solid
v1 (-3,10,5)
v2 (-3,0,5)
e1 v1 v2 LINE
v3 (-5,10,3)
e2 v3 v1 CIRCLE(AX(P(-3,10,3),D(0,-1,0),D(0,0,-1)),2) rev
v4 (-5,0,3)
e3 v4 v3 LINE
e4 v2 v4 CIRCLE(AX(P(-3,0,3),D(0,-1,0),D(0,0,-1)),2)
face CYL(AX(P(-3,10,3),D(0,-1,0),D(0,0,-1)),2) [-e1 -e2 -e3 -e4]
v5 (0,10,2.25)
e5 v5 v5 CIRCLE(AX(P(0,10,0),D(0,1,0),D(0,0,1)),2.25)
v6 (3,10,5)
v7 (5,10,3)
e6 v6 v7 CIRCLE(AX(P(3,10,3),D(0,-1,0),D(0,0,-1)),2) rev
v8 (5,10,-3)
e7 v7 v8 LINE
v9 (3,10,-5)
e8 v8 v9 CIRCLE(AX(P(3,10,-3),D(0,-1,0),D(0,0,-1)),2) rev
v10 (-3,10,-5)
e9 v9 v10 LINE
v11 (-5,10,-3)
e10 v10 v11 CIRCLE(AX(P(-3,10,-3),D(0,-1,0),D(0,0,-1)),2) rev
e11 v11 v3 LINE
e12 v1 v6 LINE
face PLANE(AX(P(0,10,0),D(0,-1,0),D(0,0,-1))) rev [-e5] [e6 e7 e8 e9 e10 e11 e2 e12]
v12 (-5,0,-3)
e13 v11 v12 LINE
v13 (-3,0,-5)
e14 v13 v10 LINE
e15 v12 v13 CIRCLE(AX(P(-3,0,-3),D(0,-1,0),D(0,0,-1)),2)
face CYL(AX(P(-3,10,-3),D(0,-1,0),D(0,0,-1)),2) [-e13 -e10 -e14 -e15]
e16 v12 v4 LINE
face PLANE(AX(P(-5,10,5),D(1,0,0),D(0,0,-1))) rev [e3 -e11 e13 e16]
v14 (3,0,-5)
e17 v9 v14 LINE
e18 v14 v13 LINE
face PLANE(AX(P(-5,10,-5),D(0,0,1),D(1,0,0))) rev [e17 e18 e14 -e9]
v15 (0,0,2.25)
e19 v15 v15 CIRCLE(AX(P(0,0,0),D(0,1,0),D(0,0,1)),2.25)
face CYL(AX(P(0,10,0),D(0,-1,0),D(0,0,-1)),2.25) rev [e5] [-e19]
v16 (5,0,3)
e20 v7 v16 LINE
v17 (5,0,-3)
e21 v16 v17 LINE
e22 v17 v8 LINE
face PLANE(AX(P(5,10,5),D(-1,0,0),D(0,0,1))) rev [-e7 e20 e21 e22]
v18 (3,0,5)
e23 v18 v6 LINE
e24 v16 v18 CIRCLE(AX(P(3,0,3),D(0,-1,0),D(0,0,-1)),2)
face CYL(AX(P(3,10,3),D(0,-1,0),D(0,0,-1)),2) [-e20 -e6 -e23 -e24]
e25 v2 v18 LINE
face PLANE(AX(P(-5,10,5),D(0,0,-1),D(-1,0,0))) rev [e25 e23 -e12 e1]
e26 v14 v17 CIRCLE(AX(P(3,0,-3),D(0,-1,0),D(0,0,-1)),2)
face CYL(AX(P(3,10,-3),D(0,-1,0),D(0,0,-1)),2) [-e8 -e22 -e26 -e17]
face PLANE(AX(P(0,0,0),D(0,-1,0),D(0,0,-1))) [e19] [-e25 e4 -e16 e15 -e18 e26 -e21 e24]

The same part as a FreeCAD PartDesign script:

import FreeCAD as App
import Part
import Sketcher
from FreeCAD import Vector


def edges_at(feature, points):
    """Names of the edges that pass closest to the given points."""
    edges = feature.Shape.Edges
    near = lambda p: min(range(len(edges)), key=lambda i: edges[i].distToShape(Part.Vertex(*p))[0])
    return sorted({f"Edge{near(p) + 1}" for p in points})

doc = App.newDocument("Part")
body = doc.addObject("PartDesign::Body", "Body")

sketch1 = body.newObject("Sketcher::SketchObject", "Sketch")
sketch1.AttachmentSupport = (doc.getObject("XZ_Plane"), [""])
sketch1.MapMode = "FlatFace"
sketch1.addGeometry(Part.LineSegment(Vector(-5, -5, 0), Vector(-5, 5, 0)), False)
sketch1.addGeometry(Part.LineSegment(Vector(-5, 5, 0), Vector(5, 5, 0)), False)
sketch1.addGeometry(Part.LineSegment(Vector(5, 5, 0), Vector(5, -5, 0)), False)
sketch1.addGeometry(Part.LineSegment(Vector(5, -5, 0), Vector(-5, -5, 0)), False)
sketch1.addGeometry(Part.Circle(Vector(0, 0, 0), Vector(0, 0, 1), 2.2), False)
sketch1.addConstraint(Sketcher.Constraint("Coincident", 0, 2, 1, 1))
sketch1.addConstraint(Sketcher.Constraint("Coincident", 1, 2, 2, 1))
sketch1.addConstraint(Sketcher.Constraint("Coincident", 2, 2, 3, 1))
sketch1.addConstraint(Sketcher.Constraint("Coincident", 3, 2, 0, 1))
sketch1.addConstraint(Sketcher.Constraint("Vertical", 0))
sketch1.addConstraint(Sketcher.Constraint("Horizontal", 1))
sketch1.addConstraint(Sketcher.Constraint("Vertical", 2))
sketch1.addConstraint(Sketcher.Constraint("Horizontal", 3))
sketch1.addConstraint(Sketcher.Constraint("Coincident", 4, 3, -1, 1))
sketch1.addConstraint(Sketcher.Constraint("Symmetric", 0, 2, 2, 2, -1, 1))
sketch1.addConstraint(Sketcher.Constraint("Equal", 3, 0))
sketch1.addConstraint(Sketcher.Constraint("Diameter", 4, 4.5))
sketch1.addConstraint(Sketcher.Constraint("DistanceX", 1, 1, 1, 2, 10.0))
pad1 = body.newObject("PartDesign::Pad", "Pad")
pad1.Profile = sketch1
pad1.Length = 10
pad1.Reversed = True
doc.recompute()

fillet = body.newObject("PartDesign::Fillet", "Fillet")
fillet.Base = (pad1, edges_at(pad1, [
    (5, 5, 5),
    (-5, 5, 5),
    (-5, 5, -5),
    (5, 5, -5),
]))
fillet.Radius = 2

doc.recompute()
